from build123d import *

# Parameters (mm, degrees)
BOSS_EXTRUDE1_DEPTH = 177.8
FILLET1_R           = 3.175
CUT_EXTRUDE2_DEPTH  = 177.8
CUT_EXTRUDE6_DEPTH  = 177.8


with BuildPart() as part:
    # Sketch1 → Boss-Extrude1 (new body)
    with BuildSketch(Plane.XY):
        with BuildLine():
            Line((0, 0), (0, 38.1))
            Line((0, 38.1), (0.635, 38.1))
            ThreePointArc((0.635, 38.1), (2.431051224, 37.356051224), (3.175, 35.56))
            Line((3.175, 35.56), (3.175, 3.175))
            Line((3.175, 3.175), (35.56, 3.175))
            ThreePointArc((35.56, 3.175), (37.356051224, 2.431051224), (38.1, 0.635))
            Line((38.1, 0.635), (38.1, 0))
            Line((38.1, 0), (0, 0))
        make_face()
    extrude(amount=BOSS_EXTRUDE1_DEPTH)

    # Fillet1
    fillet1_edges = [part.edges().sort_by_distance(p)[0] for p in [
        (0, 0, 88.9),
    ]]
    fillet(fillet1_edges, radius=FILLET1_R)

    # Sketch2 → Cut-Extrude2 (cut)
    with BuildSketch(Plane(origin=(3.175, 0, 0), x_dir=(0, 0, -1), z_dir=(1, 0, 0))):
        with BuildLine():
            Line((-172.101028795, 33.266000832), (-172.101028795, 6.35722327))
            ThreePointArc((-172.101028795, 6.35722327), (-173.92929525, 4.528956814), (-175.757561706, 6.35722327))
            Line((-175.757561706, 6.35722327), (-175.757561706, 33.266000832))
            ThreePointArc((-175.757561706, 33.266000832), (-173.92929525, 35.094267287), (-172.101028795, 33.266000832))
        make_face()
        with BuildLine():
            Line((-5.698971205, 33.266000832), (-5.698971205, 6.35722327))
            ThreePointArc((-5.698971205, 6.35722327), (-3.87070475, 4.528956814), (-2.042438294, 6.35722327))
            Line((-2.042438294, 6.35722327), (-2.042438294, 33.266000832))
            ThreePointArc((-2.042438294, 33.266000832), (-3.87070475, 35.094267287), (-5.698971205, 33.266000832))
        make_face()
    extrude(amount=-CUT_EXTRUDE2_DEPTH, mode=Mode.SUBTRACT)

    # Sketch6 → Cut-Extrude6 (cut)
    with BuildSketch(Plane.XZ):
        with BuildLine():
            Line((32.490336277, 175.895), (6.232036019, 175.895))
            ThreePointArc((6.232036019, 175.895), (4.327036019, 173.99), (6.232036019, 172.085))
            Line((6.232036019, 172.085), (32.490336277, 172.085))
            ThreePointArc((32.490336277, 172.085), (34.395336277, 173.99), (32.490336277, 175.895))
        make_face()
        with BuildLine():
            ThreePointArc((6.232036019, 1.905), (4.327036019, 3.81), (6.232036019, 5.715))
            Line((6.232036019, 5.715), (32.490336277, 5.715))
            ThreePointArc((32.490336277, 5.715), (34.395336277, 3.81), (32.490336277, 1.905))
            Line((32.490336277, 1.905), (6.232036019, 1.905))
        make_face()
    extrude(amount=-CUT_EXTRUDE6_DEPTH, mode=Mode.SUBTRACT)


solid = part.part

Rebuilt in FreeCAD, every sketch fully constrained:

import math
import FreeCAD as App
import Part
import Sketcher
Q = App.Units.Quantity


def edges_at(feature, points):
    """Names of the edges that pass closest to the given points."""
    edges = feature.Shape.Edges
    near = lambda p: min(range(len(edges)), key=lambda i: edges[i].distToShape(Part.Vertex(*p))[0])
    return sorted({f"Edge{near(p) + 1}" for p in points})

doc = App.newDocument("Part")
body = doc.addObject("PartDesign::Body", "Body")

# Sketch on XY plane
sketch1 = body.newObject("Sketcher::SketchObject", "Sketch")
sketch1.AttachmentSupport = (doc.getObject("XY_Plane"), [""])
sketch1.MapMode = "FlatFace"
sketch1.addGeometry([
    Part.LineSegment(App.Vector(0, 38.1, 0), App.Vector(0, 0, 0)),  # 0
    Part.LineSegment(App.Vector(0, 0, 0), App.Vector(38.1, 0, 0)),  # 1
    Part.LineSegment(App.Vector(38.1, 0, 0), App.Vector(38.1, 0.6, 0)),  # 2
    Part.ArcOfCircle(Part.Circle(App.Vector(35.6, 0.6, 0), App.Vector(0, 0, 1), 2.5), math.radians(0), math.radians(90)),  # 3
    Part.LineSegment(App.Vector(35.6, 3.2, 0), App.Vector(3.2, 3.2, 0)),  # 4
    Part.LineSegment(App.Vector(3.2, 3.2, 0), App.Vector(3.2, 35.6, 0)),  # 5
    Part.ArcOfCircle(Part.Circle(App.Vector(0.6, 35.6, 0), App.Vector(0, 0, 1), 2.5), math.radians(0), math.radians(90)),  # 6
    Part.LineSegment(App.Vector(0.6, 38.1, 0), App.Vector(0, 38.1, 0)),  # 7
], False)
sketch1.addConstraint([
    Sketcher.Constraint("Coincident", 0, 2, 1, 1),
    Sketcher.Constraint("Coincident", 1, 2, 2, 1),
    Sketcher.Constraint("Tangent", 2, 2, 3, 1),
    Sketcher.Constraint("Tangent", 3, 2, 4, 1),
    Sketcher.Constraint("Coincident", 4, 2, 5, 1),
    Sketcher.Constraint("Tangent", 5, 2, 6, 1),
    Sketcher.Constraint("Tangent", 6, 2, 7, 1),
    Sketcher.Constraint("Coincident", 7, 2, 0, 1),
    Sketcher.Constraint("Vertical", 0),
    Sketcher.Constraint("Horizontal", 1),
    Sketcher.Constraint("Vertical", 2),
    Sketcher.Constraint("Horizontal", 4),
    Sketcher.Constraint("Vertical", 5),
    Sketcher.Constraint("Horizontal", 7),
    Sketcher.Constraint("Coincident", 0, 2, -1, 1),
    Sketcher.Constraint("Equal", 3, 6),
    Sketcher.Constraint("Equal", 1, 0),
    Sketcher.Constraint("Equal", 7, 2),
    Sketcher.Constraint("Radius", 3, Q("0.1 in")),
    Sketcher.Constraint("DistanceX", 1, 1, 1, 2, Q("1.5 in")),
    Sketcher.Constraint("DistanceX", 4, 2, 4, 1, Q("1.275 in")),
])
pad1 = body.newObject("PartDesign::Pad", "Pad")
pad1.Profile = sketch1
pad1.Length = Q("7 in")
doc.recompute()

fillet = body.newObject("PartDesign::Fillet", "Fillet")
fillet.Base = (pad1, edges_at(pad1, [(0, 0, 88.9)]))
fillet.Radius = Q("0.125 in")

# Sketch on YZ plane
sketch2 = body.newObject("Sketcher::SketchObject", "Sketch001")
sketch2.AttachmentSupport = (doc.getObject("YZ_Plane"), [""])
sketch2.MapMode = "FlatFace"
sketch2.AttachmentOffset = App.Placement(App.Vector(0, 0, 0.125 * 25.4), App.Rotation())
sketch2.addGeometry([
    Part.LineSegment(App.Vector(6.4, 172.1, 0), App.Vector(33.3, 172.1, 0)),  # 0
    Part.ArcOfCircle(Part.Circle(App.Vector(33.3, 173.9, 0), App.Vector(0, 0, 1), 1.8), math.radians(-90), math.radians(90)),  # 1
    Part.LineSegment(App.Vector(33.3, 175.8, 0), App.Vector(6.4, 175.8, 0)),  # 2
    Part.ArcOfCircle(Part.Circle(App.Vector(6.4, 173.9, 0), App.Vector(0, 0, 1), 1.8), math.radians(90), math.radians(270)),  # 3
    Part.LineSegment(App.Vector(33.3, 5.7, 0), App.Vector(6.4, 5.7, 0)),  # 4
    Part.ArcOfCircle(Part.Circle(App.Vector(6.4, 3.9, 0), App.Vector(0, 0, 1), 1.8), math.radians(90), math.radians(270)),  # 5
    Part.LineSegment(App.Vector(6.4, 2, 0), App.Vector(33.3, 2, 0)),  # 6
    Part.ArcOfCircle(Part.Circle(App.Vector(33.3, 3.9, 0), App.Vector(0, 0, 1), 1.8), math.radians(-90), math.radians(90)),  # 7
], False)
sketch2.addConstraint([
    Sketcher.Constraint("Tangent", 0, 2, 1, 1),
    Sketcher.Constraint("Tangent", 1, 2, 2, 1),
    Sketcher.Constraint("Tangent", 2, 2, 3, 1),
    Sketcher.Constraint("Tangent", 3, 2, 0, 1),
    Sketcher.Constraint("Tangent", 4, 2, 5, 1),
    Sketcher.Constraint("Tangent", 5, 2, 6, 1),
    Sketcher.Constraint("Tangent", 6, 2, 7, 1),
    Sketcher.Constraint("Tangent", 7, 2, 4, 1),
    Sketcher.Constraint("Horizontal", 0),
    Sketcher.Constraint("Horizontal", 2),
    Sketcher.Constraint("Horizontal", 4),
    Sketcher.Constraint("Horizontal", 6),
    Sketcher.Constraint("Equal", 3, 5),
    Sketcher.Constraint("Vertical", 3, 3, 5, 3),
    Sketcher.Constraint("Vertical", 1, 3, 7, 3),
    Sketcher.Constraint("Radius", 1, 1.828266),
    Sketcher.Constraint("DistanceX", -1, 1, 1, 3, 33.266001),
    Sketcher.Constraint("DistanceX", 0, 1, 0, 2, 26.908778),
    Sketcher.Constraint("DistanceY", -1, 1, 0, 2, 172.101029),
    Sketcher.Constraint("DistanceY", -1, 1, 4, 2, 5.698971),
])
pocket1 = body.newObject("PartDesign::Pocket", "Pocket")
pocket1.Profile = sketch2
pocket1.Length = Q("7 in")

# Sketch on XZ plane
sketch3 = body.newObject("Sketcher::SketchObject", "Sketch002")
sketch3.AttachmentSupport = (doc.getObject("XZ_Plane"), [""])
sketch3.MapMode = "FlatFace"
sketch3.addGeometry([
    Part.LineSegment(App.Vector(32.5, 175.9, 0), App.Vector(6.2, 175.9, 0)),  # 0
    Part.ArcOfCircle(Part.Circle(App.Vector(6.2, 174, 0), App.Vector(0, 0, 1), 1.9), math.radians(90), math.radians(270)),  # 1
    Part.LineSegment(App.Vector(6.2, 172.1, 0), App.Vector(32.5, 172.1, 0)),  # 2
    Part.ArcOfCircle(Part.Circle(App.Vector(32.5, 174, 0), App.Vector(0, 0, 1), 1.9), math.radians(-90), math.radians(90)),  # 3
    Part.ArcOfCircle(Part.Circle(App.Vector(6.2, 3.8, 0), App.Vector(0, 0, 1), 1.9), math.radians(90), math.radians(270)),  # 4
    Part.LineSegment(App.Vector(6.2, 1.9, 0), App.Vector(32.5, 1.9, 0)),  # 5
    Part.ArcOfCircle(Part.Circle(App.Vector(32.5, 3.8, 0), App.Vector(0, 0, 1), 1.9), math.radians(-90), math.radians(90)),  # 6
    Part.LineSegment(App.Vector(32.5, 5.7, 0), App.Vector(6.2, 5.7, 0)),  # 7
], False)
sketch3.addConstraint([
    Sketcher.Constraint("Tangent", 0, 2, 1, 1),
    Sketcher.Constraint("Tangent", 1, 2, 2, 1),
    Sketcher.Constraint("Tangent", 2, 2, 3, 1),
    Sketcher.Constraint("Tangent", 3, 2, 0, 1),
    Sketcher.Constraint("Tangent", 4, 2, 5, 1),
    Sketcher.Constraint("Tangent", 5, 2, 6, 1),
    Sketcher.Constraint("Tangent", 6, 2, 7, 1),
    Sketcher.Constraint("Tangent", 7, 2, 4, 1),
    Sketcher.Constraint("Horizontal", 0),
    Sketcher.Constraint("Horizontal", 2),
    Sketcher.Constraint("Horizontal", 5),
    Sketcher.Constraint("Horizontal", 7),
    Sketcher.Constraint("Equal", 3, 4),
    Sketcher.Constraint("Vertical", 1, 3, 4, 3),
    Sketcher.Constraint("Vertical", 3, 3, 6, 3),
    Sketcher.Constraint("Radius", 1, Q("0.075 in")),
    Sketcher.Constraint("DistanceY", 4, 3, 1, 3, Q("6.7 in")),
    Sketcher.Constraint("DistanceY", -1, 1, 1, 3, Q("6.85 in")),
    Sketcher.Constraint("DistanceX", 0, 2, 0, 1, 26.2583),
    Sketcher.Constraint("DistanceX", -1, 1, 1, 3, 6.232036),
])
pocket2 = body.newObject("PartDesign::Pocket", "Pocket001")
pocket2.Profile = sketch3
pocket2.Length = Q("7 in")

doc.recompute()
